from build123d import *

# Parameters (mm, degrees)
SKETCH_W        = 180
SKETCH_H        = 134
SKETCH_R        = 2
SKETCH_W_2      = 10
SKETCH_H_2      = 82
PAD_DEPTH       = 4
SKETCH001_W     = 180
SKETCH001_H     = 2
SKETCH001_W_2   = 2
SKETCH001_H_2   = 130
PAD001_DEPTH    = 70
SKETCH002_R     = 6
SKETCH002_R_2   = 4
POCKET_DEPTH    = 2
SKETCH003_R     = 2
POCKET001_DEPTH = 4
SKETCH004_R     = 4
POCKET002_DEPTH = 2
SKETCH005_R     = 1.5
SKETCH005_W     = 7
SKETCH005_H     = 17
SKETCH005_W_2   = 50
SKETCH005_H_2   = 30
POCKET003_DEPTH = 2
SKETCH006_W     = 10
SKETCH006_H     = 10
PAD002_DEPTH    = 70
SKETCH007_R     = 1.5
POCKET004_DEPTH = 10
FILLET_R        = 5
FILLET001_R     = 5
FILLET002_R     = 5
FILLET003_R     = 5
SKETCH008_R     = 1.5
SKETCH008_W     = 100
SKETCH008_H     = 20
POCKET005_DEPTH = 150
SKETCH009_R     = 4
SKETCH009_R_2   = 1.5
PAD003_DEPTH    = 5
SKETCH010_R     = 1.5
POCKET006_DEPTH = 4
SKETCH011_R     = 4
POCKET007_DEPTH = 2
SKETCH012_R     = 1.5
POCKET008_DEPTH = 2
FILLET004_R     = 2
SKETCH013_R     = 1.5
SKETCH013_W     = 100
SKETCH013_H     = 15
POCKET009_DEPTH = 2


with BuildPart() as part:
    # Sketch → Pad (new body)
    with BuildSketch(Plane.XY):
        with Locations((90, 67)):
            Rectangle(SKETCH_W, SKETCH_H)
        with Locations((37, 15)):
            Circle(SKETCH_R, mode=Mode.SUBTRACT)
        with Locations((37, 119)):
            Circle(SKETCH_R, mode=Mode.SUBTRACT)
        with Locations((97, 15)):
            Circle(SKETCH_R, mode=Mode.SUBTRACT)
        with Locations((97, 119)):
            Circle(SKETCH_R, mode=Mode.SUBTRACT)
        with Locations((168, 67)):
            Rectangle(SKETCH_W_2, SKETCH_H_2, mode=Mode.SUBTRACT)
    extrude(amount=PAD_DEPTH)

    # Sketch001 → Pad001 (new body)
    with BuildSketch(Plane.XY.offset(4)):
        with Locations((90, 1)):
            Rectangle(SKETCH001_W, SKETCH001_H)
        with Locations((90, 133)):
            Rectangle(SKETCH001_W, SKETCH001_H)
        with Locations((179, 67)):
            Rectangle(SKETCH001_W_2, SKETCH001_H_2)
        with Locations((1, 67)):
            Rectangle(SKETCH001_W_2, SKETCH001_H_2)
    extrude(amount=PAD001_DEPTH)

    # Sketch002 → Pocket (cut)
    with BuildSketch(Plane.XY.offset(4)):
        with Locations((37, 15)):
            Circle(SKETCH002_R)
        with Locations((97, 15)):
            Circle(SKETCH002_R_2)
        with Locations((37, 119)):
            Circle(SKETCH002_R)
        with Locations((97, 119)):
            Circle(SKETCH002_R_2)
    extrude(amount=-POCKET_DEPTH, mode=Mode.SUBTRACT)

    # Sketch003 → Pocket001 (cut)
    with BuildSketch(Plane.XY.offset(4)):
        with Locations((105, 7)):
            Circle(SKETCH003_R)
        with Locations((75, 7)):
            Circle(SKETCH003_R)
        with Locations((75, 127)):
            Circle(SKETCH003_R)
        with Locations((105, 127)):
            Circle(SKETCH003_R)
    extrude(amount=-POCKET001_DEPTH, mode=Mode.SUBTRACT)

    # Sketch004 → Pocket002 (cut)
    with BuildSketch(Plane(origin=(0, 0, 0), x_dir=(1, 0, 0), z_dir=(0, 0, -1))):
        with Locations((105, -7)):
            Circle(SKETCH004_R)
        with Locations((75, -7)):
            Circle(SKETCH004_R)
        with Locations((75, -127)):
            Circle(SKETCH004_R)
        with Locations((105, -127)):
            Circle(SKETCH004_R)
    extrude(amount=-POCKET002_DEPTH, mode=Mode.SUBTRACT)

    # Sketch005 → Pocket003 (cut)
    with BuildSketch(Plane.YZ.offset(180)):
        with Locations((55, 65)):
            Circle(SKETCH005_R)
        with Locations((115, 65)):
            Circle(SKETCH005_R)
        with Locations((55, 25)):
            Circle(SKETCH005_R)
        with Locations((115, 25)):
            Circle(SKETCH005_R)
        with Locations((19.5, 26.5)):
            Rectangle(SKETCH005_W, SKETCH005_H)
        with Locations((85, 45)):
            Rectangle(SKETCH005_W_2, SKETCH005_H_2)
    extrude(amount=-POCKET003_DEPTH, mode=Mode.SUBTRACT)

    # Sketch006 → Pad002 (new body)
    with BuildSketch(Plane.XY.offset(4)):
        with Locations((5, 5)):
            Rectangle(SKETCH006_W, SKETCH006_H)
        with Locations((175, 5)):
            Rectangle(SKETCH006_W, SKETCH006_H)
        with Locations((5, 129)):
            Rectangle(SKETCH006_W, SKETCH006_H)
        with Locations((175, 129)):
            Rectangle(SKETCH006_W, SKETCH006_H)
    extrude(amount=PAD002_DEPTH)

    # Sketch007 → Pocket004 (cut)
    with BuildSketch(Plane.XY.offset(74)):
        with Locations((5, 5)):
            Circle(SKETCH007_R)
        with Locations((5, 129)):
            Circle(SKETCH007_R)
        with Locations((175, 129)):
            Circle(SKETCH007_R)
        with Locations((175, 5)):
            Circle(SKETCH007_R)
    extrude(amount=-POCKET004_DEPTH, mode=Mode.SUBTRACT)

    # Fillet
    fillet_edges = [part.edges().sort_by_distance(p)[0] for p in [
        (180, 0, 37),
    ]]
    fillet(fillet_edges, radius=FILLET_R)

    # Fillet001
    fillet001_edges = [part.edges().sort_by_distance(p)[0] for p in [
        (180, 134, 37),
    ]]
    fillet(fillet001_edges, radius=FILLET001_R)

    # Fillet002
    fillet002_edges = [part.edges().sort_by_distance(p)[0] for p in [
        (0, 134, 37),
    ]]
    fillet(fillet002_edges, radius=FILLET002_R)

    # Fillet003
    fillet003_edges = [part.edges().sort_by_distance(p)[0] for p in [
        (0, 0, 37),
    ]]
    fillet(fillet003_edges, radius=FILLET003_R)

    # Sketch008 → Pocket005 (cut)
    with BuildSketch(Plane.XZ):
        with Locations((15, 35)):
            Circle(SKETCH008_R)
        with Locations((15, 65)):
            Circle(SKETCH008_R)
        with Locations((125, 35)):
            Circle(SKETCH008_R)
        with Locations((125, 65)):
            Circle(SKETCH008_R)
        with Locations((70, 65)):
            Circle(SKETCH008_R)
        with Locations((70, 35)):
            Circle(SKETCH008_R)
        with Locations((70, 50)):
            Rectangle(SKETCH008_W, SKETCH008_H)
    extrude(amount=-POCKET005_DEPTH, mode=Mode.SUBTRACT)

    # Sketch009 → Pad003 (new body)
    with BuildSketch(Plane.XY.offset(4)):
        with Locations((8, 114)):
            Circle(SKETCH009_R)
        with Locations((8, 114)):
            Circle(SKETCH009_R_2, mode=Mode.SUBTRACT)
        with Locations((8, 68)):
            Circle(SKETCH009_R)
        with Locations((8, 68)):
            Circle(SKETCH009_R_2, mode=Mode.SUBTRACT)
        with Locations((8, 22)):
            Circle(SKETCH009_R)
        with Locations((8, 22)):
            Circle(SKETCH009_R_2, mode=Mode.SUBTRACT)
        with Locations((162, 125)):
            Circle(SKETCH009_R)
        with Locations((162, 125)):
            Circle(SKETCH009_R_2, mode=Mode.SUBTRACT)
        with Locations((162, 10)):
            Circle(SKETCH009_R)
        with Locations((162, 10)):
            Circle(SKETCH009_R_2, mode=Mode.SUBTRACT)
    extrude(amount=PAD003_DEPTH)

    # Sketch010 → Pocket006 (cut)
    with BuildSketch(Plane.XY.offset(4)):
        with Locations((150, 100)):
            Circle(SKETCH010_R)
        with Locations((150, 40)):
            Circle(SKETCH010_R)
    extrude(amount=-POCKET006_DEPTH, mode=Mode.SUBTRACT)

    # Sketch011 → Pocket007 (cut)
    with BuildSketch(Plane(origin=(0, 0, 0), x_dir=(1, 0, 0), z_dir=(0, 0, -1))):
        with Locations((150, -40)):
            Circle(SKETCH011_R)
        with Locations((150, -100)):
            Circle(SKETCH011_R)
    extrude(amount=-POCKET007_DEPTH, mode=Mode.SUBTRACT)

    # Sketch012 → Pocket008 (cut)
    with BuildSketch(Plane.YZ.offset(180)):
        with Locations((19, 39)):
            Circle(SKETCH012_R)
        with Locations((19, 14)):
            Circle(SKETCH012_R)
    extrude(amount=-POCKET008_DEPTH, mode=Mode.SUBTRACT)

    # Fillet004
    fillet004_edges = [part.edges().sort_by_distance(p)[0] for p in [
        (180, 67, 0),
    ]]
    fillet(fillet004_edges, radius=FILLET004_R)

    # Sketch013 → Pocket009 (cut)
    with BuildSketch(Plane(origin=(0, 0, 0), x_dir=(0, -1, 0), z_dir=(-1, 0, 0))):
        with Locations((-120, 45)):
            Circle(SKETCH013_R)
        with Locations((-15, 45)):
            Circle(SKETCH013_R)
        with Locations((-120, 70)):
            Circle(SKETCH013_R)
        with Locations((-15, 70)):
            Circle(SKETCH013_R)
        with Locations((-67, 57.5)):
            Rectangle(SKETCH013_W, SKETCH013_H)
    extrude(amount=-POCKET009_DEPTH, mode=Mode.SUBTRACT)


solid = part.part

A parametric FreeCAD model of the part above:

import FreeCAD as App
import Part
import Sketcher
from FreeCAD import Vector
Q = App.Units.Quantity


def edges_at(feature, points):
    """Names of the edges that pass closest to the given points."""
    edges = feature.Shape.Edges
    near = lambda p: min(range(len(edges)), key=lambda i: edges[i].distToShape(Part.Vertex(*p))[0])
    return sorted({f"Edge{near(p) + 1}" for p in points})

doc = App.newDocument("Part")
body = doc.addObject("PartDesign::Body", "Body")

# Sketch on XY plane
sketch1 = body.newObject("Sketcher::SketchObject", "Sketch")
sketch1.AttachmentSupport = (doc.getObject("XY_Plane"), [""])
sketch1.MapMode = "FlatFace"
sketch1.addGeometry([
    Part.LineSegment(Vector(0, 134, 0), Vector(0, 0, 0)),  # 0
    Part.LineSegment(Vector(0, 0, 0), Vector(180, 0, 0)),  # 1
    Part.LineSegment(Vector(180, 0, 0), Vector(180, 134, 0)),  # 2
    Part.LineSegment(Vector(180, 134, 0), Vector(0, 134, 0)),  # 3
    Part.Circle(Vector(37, 15, 0), Vector(0, 0, 1), 2),  # 4
    Part.Circle(Vector(97, 15, 0), Vector(0, 0, 1), 2),  # 5
    Part.Circle(Vector(37, 119, 0), Vector(0, 0, 1), 2),  # 6
    Part.Circle(Vector(97, 119, 0), Vector(0, 0, 1), 2),  # 7
    Part.LineSegment(Vector(173, 26, 0), Vector(163, 26, 0)),  # 8
    Part.LineSegment(Vector(163, 26, 0), Vector(163, 108, 0)),  # 9
    Part.LineSegment(Vector(163, 108, 0), Vector(173, 108, 0)),  # 10
    Part.LineSegment(Vector(173, 108, 0), Vector(173, 26, 0)),  # 11
], False)
sketch1.addConstraint([
    Sketcher.Constraint("Coincident", 0, 2, 1, 1),
    Sketcher.Constraint("Coincident", 1, 2, 2, 1),
    Sketcher.Constraint("Coincident", 2, 2, 3, 1),
    Sketcher.Constraint("Coincident", 3, 2, 0, 1),
    Sketcher.Constraint("Coincident", 8, 2, 9, 1),
    Sketcher.Constraint("Coincident", 9, 2, 10, 1),
    Sketcher.Constraint("Coincident", 10, 2, 11, 1),
    Sketcher.Constraint("Coincident", 11, 2, 8, 1),
    Sketcher.Constraint("Vertical", 0),
    Sketcher.Constraint("Horizontal", 1),
    Sketcher.Constraint("Vertical", 2),
    Sketcher.Constraint("Horizontal", 3),
    Sketcher.Constraint("Horizontal", 8),
    Sketcher.Constraint("Vertical", 9),
    Sketcher.Constraint("Horizontal", 10),
    Sketcher.Constraint("Vertical", 11),
    Sketcher.Constraint("Coincident", 0, 2, -1, 1),
    Sketcher.Constraint("Equal", 4, 5),
    Sketcher.Constraint("Equal", 5, 6),
    Sketcher.Constraint("Equal", 6, 7),
    Sketcher.Constraint("Horizontal", 4, 3, 5, 3),
    Sketcher.Constraint("Horizontal", 6, 3, 7, 3),
    Sketcher.Constraint("Vertical", 4, 3, 6, 3),
    Sketcher.Constraint("Vertical", 5, 3, 7, 3),
    Sketcher.Constraint("Diameter", 4, Q("4 mm")),
    Sketcher.Constraint("DistanceX", 1, 1, 1, 2, Q("180 mm")),
    Sketcher.Constraint("DistanceX", 8, 2, 8, 1, Q("10 mm")),
    Sketcher.Constraint("DistanceY", 0, 2, 0, 1, Q("134 mm")),
    Sketcher.Constraint("DistanceY", 9, 1, 9, 2, Q("82 mm")),
    Sketcher.Constraint("DistanceX", -1, 1, 4, 3, Q("37 mm")),
    Sketcher.Constraint("DistanceY", -1, 1, 4, 3, Q("15 mm")),
    Sketcher.Constraint("DistanceX", -1, 1, 5, 3, Q("97 mm")),
    Sketcher.Constraint("DistanceY", -1, 1, 6, 3, Q("119 mm")),
    Sketcher.Constraint("DistanceX", -1, 1, 8, 2, Q("163 mm")),
    Sketcher.Constraint("DistanceY", -1, 1, 8, 2, Q("26 mm")),
])
pad1 = body.newObject("PartDesign::Pad", "Pad")
pad1.Profile = sketch1
pad1.Length = 4

# Sketch on XY plane
sketch2 = body.newObject("Sketcher::SketchObject", "Sketch001")
sketch2.AttachmentSupport = (doc.getObject("XY_Plane"), [""])
sketch2.MapMode = "FlatFace"
sketch2.AttachmentOffset = App.Placement(Vector(0, 0, 4), App.Rotation())
sketch2.addGeometry([
    Part.LineSegment(Vector(0, 0, 0), Vector(180, 0, 0)),  # 0
    Part.LineSegment(Vector(180, 0, 0), Vector(180, 134, 0)),  # 1
    Part.LineSegment(Vector(180, 134, 0), Vector(0, 134, 0)),  # 2
    Part.LineSegment(Vector(0, 134, 0), Vector(0, 0, 0)),  # 3
    Part.LineSegment(Vector(2, 132, 0), Vector(178, 132, 0)),  # 4
    Part.LineSegment(Vector(178, 132, 0), Vector(178, 2, 0)),  # 5
    Part.LineSegment(Vector(178, 2, 0), Vector(2, 2, 0)),  # 6
    Part.LineSegment(Vector(2, 2, 0), Vector(2, 132, 0)),  # 7
], False)
sketch2.addConstraint([
    Sketcher.Constraint("Coincident", 0, 2, 1, 1),
    Sketcher.Constraint("Coincident", 1, 2, 2, 1),
    Sketcher.Constraint("Coincident", 2, 2, 3, 1),
    Sketcher.Constraint("Coincident", 3, 2, 0, 1),
    Sketcher.Constraint("Coincident", 4, 2, 5, 1),
    Sketcher.Constraint("Coincident", 5, 2, 6, 1),
    Sketcher.Constraint("Coincident", 6, 2, 7, 1),
    Sketcher.Constraint("Coincident", 7, 2, 4, 1),
    Sketcher.Constraint("Horizontal", 0),
    Sketcher.Constraint("Vertical", 1),
    Sketcher.Constraint("Horizontal", 2),
    Sketcher.Constraint("Vertical", 3),
    Sketcher.Constraint("Horizontal", 4),
    Sketcher.Constraint("Vertical", 5),
    Sketcher.Constraint("Horizontal", 6),
    Sketcher.Constraint("Vertical", 7),
    Sketcher.Constraint("Coincident", 3, 2, -1, 1),
    Sketcher.Constraint("DistanceX", 0, 1, 0, 2, Q("180 mm")),
    Sketcher.Constraint("DistanceX", 4, 1, 4, 2, Q("176 mm")),
    Sketcher.Constraint("DistanceY", 1, 1, 1, 2, Q("134 mm")),
    Sketcher.Constraint("DistanceY", 5, 2, 5, 1, Q("130 mm")),
    Sketcher.Constraint("DistanceX", -1, 1, 4, 2, Q("178 mm")),
    Sketcher.Constraint("DistanceY", -1, 1, 4, 2, Q("132 mm")),
])
pad2 = body.newObject("PartDesign::Pad", "Pad001")
pad2.Profile = sketch2
pad2.Length = 70

# Sketch on XY plane
sketch3 = body.newObject("Sketcher::SketchObject", "Sketch002")
sketch3.AttachmentSupport = (doc.getObject("XY_Plane"), [""])
sketch3.MapMode = "FlatFace"
sketch3.AttachmentOffset = App.Placement(Vector(0, 0, 4), App.Rotation())
sketch3.addGeometry([
    Part.Circle(Vector(37, 15, 0), Vector(0, 0, 1), 6),
    Part.Circle(Vector(97, 15, 0), Vector(0, 0, 1), 4),
    Part.Circle(Vector(37, 119, 0), Vector(0, 0, 1), 6),
    Part.Circle(Vector(97, 119, 0), Vector(0, 0, 1), 4),
], False)
sketch3.addConstraint([
    Sketcher.Constraint("Equal", 0, 2),
    Sketcher.Constraint("Equal", 1, 3),
    Sketcher.Constraint("Horizontal", 0, 3, 1, 3),
    Sketcher.Constraint("Horizontal", 2, 3, 3, 3),
    Sketcher.Constraint("Vertical", 0, 3, 2, 3),
    Sketcher.Constraint("Vertical", 1, 3, 3, 3),
    Sketcher.Constraint("Diameter", 0, Q("12 mm")),
    Sketcher.Constraint("Diameter", 1, Q("8 mm")),
    Sketcher.Constraint("DistanceX", -1, 1, 0, 3, Q("37 mm")),
    Sketcher.Constraint("DistanceY", -1, 1, 0, 3, Q("15 mm")),
    Sketcher.Constraint("DistanceX", -1, 1, 1, 3, Q("97 mm")),
    Sketcher.Constraint("DistanceY", -1, 1, 2, 3, Q("119 mm")),
])
pocket1 = body.newObject("PartDesign::Pocket", "Pocket")
pocket1.Profile = sketch3
pocket1.Length = 2

# Sketch on XY plane
sketch4 = body.newObject("Sketcher::SketchObject", "Sketch003")
sketch4.AttachmentSupport = (doc.getObject("XY_Plane"), [""])
sketch4.MapMode = "FlatFace"
sketch4.AttachmentOffset = App.Placement(Vector(0, 0, 4), App.Rotation())
sketch4.addGeometry([
    Part.Circle(Vector(105, 7, 0), Vector(0, 0, 1), 2),
    Part.Circle(Vector(75, 7, 0), Vector(0, 0, 1), 2),
    Part.Circle(Vector(75, 127, 0), Vector(0, 0, 1), 2),
    Part.Circle(Vector(105, 127, 0), Vector(0, 0, 1), 2),
], False)
sketch4.addConstraint([
    Sketcher.Constraint("Equal", 0, 1),
    Sketcher.Constraint("Equal", 1, 2),
    Sketcher.Constraint("Equal", 2, 3),
    Sketcher.Constraint("Horizontal", 0, 3, 1, 3),
    Sketcher.Constraint("Horizontal", 2, 3, 3, 3),
    Sketcher.Constraint("Vertical", 1, 3, 2, 3),
    Sketcher.Constraint("Vertical", 0, 3, 3, 3),
    Sketcher.Constraint("Diameter", 0, Q("4 mm")),
    Sketcher.Constraint("DistanceX", -1, 1, 0, 3, Q("105 mm")),
    Sketcher.Constraint("DistanceY", -1, 1, 0, 3, Q("7 mm")),
    Sketcher.Constraint("DistanceX", -1, 1, 1, 3, Q("75 mm")),
    Sketcher.Constraint("DistanceY", -1, 1, 2, 3, Q("127 mm")),
])
pocket2 = body.newObject("PartDesign::Pocket", "Pocket001")
pocket2.Profile = sketch4
pocket2.Length = 4

# Sketch on XY plane
sketch5 = body.newObject("Sketcher::SketchObject", "Sketch004")
sketch5.AttachmentSupport = (doc.getObject("XY_Plane"), [""])
sketch5.MapMode = "FlatFace"
sketch5.addGeometry([
    Part.Circle(Vector(105, 7, 0), Vector(0, 0, 1), 4),
    Part.Circle(Vector(75, 7, 0), Vector(0, 0, 1), 4),
    Part.Circle(Vector(75, 127, 0), Vector(0, 0, 1), 4),
    Part.Circle(Vector(105, 127, 0), Vector(0, 0, 1), 4),
], False)
sketch5.addConstraint([
    Sketcher.Constraint("Equal", 0, 1),
    Sketcher.Constraint("Equal", 1, 2),
    Sketcher.Constraint("Equal", 2, 3),
    Sketcher.Constraint("Horizontal", 0, 3, 1, 3),
    Sketcher.Constraint("Horizontal", 2, 3, 3, 3),
    Sketcher.Constraint("Vertical", 1, 3, 2, 3),
    Sketcher.Constraint("Vertical", 0, 3, 3, 3),
    Sketcher.Constraint("Diameter", 0, Q("8 mm")),
    Sketcher.Constraint("DistanceX", -1, 1, 0, 3, Q("105 mm")),
    Sketcher.Constraint("DistanceY", -1, 1, 0, 3, Q("7 mm")),
    Sketcher.Constraint("DistanceX", -1, 1, 1, 3, Q("75 mm")),
    Sketcher.Constraint("DistanceY", -1, 1, 2, 3, Q("127 mm")),
])
pocket3 = body.newObject("PartDesign::Pocket", "Pocket002")
pocket3.Profile = sketch5
pocket3.Length = 2
pocket3.Reversed = True

# Sketch on YZ plane
sketch6 = body.newObject("Sketcher::SketchObject", "Sketch005")
sketch6.AttachmentSupport = (doc.getObject("YZ_Plane"), [""])
sketch6.MapMode = "FlatFace"
sketch6.AttachmentOffset = App.Placement(Vector(0, 0, 180), App.Rotation())
sketch6.addGeometry([
    Part.Circle(Vector(55, 65, 0), Vector(0, 0, 1), 1.5),  # 0
    Part.Circle(Vector(115, 65, 0), Vector(0, 0, 1), 1.5),  # 1
    Part.Circle(Vector(55, 25, 0), Vector(0, 0, 1), 1.5),  # 2
    Part.Circle(Vector(115, 25, 0), Vector(0, 0, 1), 1.5),  # 3
    Part.LineSegment(Vector(16, 35, 0), Vector(16, 18, 0)),  # 4
    Part.LineSegment(Vector(16, 18, 0), Vector(23, 18, 0)),  # 5
    Part.LineSegment(Vector(23, 18, 0), Vector(23, 35, 0)),  # 6
    Part.LineSegment(Vector(23, 35, 0), Vector(16, 35, 0)),  # 7
    Part.LineSegment(Vector(60, 60, 0), Vector(60, 30, 0)),  # 8
    Part.LineSegment(Vector(60, 30, 0), Vector(110, 30, 0)),  # 9
    Part.LineSegment(Vector(110, 30, 0), Vector(110, 60, 0)),  # 10
    Part.LineSegment(Vector(110, 60, 0), Vector(60, 60, 0)),  # 11
], False)
sketch6.addConstraint([
    Sketcher.Constraint("Coincident", 4, 2, 5, 1),
    Sketcher.Constraint("Coincident", 5, 2, 6, 1),
    Sketcher.Constraint("Coincident", 6, 2, 7, 1),
    Sketcher.Constraint("Coincident", 7, 2, 4, 1),
    Sketcher.Constraint("Coincident", 8, 2, 9, 1),
    Sketcher.Constraint("Coincident", 9, 2, 10, 1),
    Sketcher.Constraint("Coincident", 10, 2, 11, 1),
    Sketcher.Constraint("Coincident", 11, 2, 8, 1),
    Sketcher.Constraint("Vertical", 4),
    Sketcher.Constraint("Horizontal", 5),
    Sketcher.Constraint("Vertical", 6),
    Sketcher.Constraint("Horizontal", 7),
    Sketcher.Constraint("Vertical", 8),
    Sketcher.Constraint("Horizontal", 9),
    Sketcher.Constraint("Vertical", 10),
    Sketcher.Constraint("Horizontal", 11),
    Sketcher.Constraint("Equal", 0, 1),
    Sketcher.Constraint("Equal", 1, 2),
    Sketcher.Constraint("Equal", 2, 3),
    Sketcher.Constraint("Horizontal", 0, 3, 1, 3),
    Sketcher.Constraint("Horizontal", 2, 3, 3, 3),
    Sketcher.Constraint("Vertical", 0, 3, 2, 3),
    Sketcher.Constraint("Vertical", 1, 3, 3, 3),
    Sketcher.Constraint("Diameter", 0, Q("3 mm")),
    Sketcher.Constraint("DistanceX", 5, 1, 5, 2, Q("7 mm")),
    Sketcher.Constraint("DistanceX", 9, 1, 9, 2, Q("50 mm")),
    Sketcher.Constraint("DistanceY", 4, 2, 4, 1, Q("17 mm")),
    Sketcher.Constraint("DistanceY", 8, 2, 8, 1, Q("30 mm")),
    Sketcher.Constraint("DistanceX", -1, 1, 0, 3, Q("55 mm")),
    Sketcher.Constraint("DistanceY", -1, 1, 0, 3, Q("65 mm")),
    Sketcher.Constraint("DistanceX", -1, 1, 1, 3, Q("115 mm")),
    Sketcher.Constraint("DistanceY", -1, 1, 2, 3, Q("25 mm")),
    Sketcher.Constraint("DistanceX", -1, 1, 4, 2, Q("16 mm")),
    Sketcher.Constraint("DistanceY", -1, 1, 4, 2, Q("18 mm")),
    Sketcher.Constraint("DistanceX", -1, 1, 8, 2, Q("60 mm")),
    Sketcher.Constraint("DistanceY", -1, 1, 8, 2, Q("30 mm")),
])
pocket4 = body.newObject("PartDesign::Pocket", "Pocket003")
pocket4.Profile = sketch6
pocket4.Length = 2

# Sketch on XY plane
sketch7 = body.newObject("Sketcher::SketchObject", "Sketch006")
sketch7.AttachmentSupport = (doc.getObject("XY_Plane"), [""])
sketch7.MapMode = "FlatFace"
sketch7.AttachmentOffset = App.Placement(Vector(0, 0, 4), App.Rotation())
sketch7.addGeometry([
    Part.LineSegment(Vector(0, 10, 0), Vector(0, 0, 0)),  # 0
    Part.LineSegment(Vector(0, 0, 0), Vector(10, 0, 0)),  # 1
    Part.LineSegment(Vector(10, 0, 0), Vector(10, 10, 0)),  # 2
    Part.LineSegment(Vector(10, 10, 0), Vector(0, 10, 0)),  # 3
    Part.LineSegment(Vector(170, 10, 0), Vector(170, 0, 0)),  # 4
    Part.LineSegment(Vector(170, 0, 0), Vector(180, 0, 0)),  # 5
    Part.LineSegment(Vector(180, 0, 0), Vector(180, 10, 0)),  # 6
    Part.LineSegment(Vector(180, 10, 0), Vector(170, 10, 0)),  # 7
    Part.LineSegment(Vector(0, 134, 0), Vector(0, 124, 0)),  # 8
    Part.LineSegment(Vector(0, 124, 0), Vector(10, 124, 0)),  # 9
    Part.LineSegment(Vector(10, 124, 0), Vector(10, 134, 0)),  # 10
    Part.LineSegment(Vector(10, 134, 0), Vector(0, 134, 0)),  # 11
    Part.LineSegment(Vector(170, 134, 0), Vector(170, 124, 0)),  # 12
    Part.LineSegment(Vector(170, 124, 0), Vector(180, 124, 0)),  # 13
    Part.LineSegment(Vector(180, 124, 0), Vector(180, 134, 0)),  # 14
    Part.LineSegment(Vector(180, 134, 0), Vector(170, 134, 0)),  # 15
], False)
sketch7.addConstraint([
    Sketcher.Constraint("Coincident", 0, 2, 1, 1),
    Sketcher.Constraint("Coincident", 1, 2, 2, 1),
    Sketcher.Constraint("Coincident", 2, 2, 3, 1),
    Sketcher.Constraint("Coincident", 3, 2, 0, 1),
    Sketcher.Constraint("Coincident", 4, 2, 5, 1),
    Sketcher.Constraint("Coincident", 5, 2, 6, 1),
    Sketcher.Constraint("Coincident", 6, 2, 7, 1),
    Sketcher.Constraint("Coincident", 7, 2, 4, 1),
    Sketcher.Constraint("Coincident", 8, 2, 9, 1),
    Sketcher.Constraint("Coincident", 9, 2, 10, 1),
    Sketcher.Constraint("Coincident", 10, 2, 11, 1),
    Sketcher.Constraint("Coincident", 11, 2, 8, 1),
    Sketcher.Constraint("Coincident", 12, 2, 13, 1),
    Sketcher.Constraint("Coincident", 13, 2, 14, 1),
    Sketcher.Constraint("Coincident", 14, 2, 15, 1),
    Sketcher.Constraint("Coincident", 15, 2, 12, 1),
    Sketcher.Constraint("Vertical", 0),
    Sketcher.Constraint("Horizontal", 1),
    Sketcher.Constraint("Vertical", 2),
    Sketcher.Constraint("Horizontal", 3),
    Sketcher.Constraint("Vertical", 4),
    Sketcher.Constraint("Horizontal", 5),
    Sketcher.Constraint("Vertical", 6),
    Sketcher.Constraint("Horizontal", 7),
    Sketcher.Constraint("Vertical", 8),
    Sketcher.Constraint("Horizontal", 9),
    Sketcher.Constraint("Vertical", 10),
    Sketcher.Constraint("Horizontal", 11),
    Sketcher.Constraint("Vertical", 12),
    Sketcher.Constraint("Horizontal", 13),
    Sketcher.Constraint("Vertical", 14),
    Sketcher.Constraint("Horizontal", 15),
    Sketcher.Constraint("Coincident", 0, 2, -1, 1),
    Sketcher.Constraint("PointOnObject", 4, 2, -1),
    Sketcher.Constraint("PointOnObject", 8, 2, -2),
    Sketcher.Constraint("Horizontal", 3, 2, 6, 2),
    Sketcher.Constraint("Horizontal", 9, 2, 12, 2),
    Sketcher.Constraint("Horizontal", 11, 2, 14, 2),
    Sketcher.Constraint("Vertical", 2, 2, 9, 2),
    Sketcher.Constraint("Vertical", 7, 2, 12, 2),
    Sketcher.Constraint("Vertical", 6, 2, 13, 2),
    Sketcher.Constraint("Equal", 3, 5),
    Sketcher.Constraint("Equal", 15, 0),
    Sketcher.Constraint("Equal", 6, 8),
    Sketcher.Constraint("DistanceX", 1, 1, 1, 2, Q("10 mm")),
    Sketcher.Constraint("DistanceX", -1, 1, 4, 2, Q("170 mm")),
    Sketcher.Constraint("DistanceY", -1, 1, 8, 2, Q("124 mm")),
])
pad3 = body.newObject("PartDesign::Pad", "Pad002")
pad3.Profile = sketch7
pad3.Length = 70

# Sketch on XY plane
sketch8 = body.newObject("Sketcher::SketchObject", "Sketch007")
sketch8.AttachmentSupport = (doc.getObject("XY_Plane"), [""])
sketch8.MapMode = "FlatFace"
sketch8.AttachmentOffset = App.Placement(Vector(0, 0, 74), App.Rotation())
sketch8.addGeometry([
    Part.Circle(Vector(5, 5, 0), Vector(0, 0, 1), 1.5),
    Part.Circle(Vector(5, 129, 0), Vector(0, 0, 1), 1.5),
    Part.Circle(Vector(175, 129, 0), Vector(0, 0, 1), 1.5),
    Part.Circle(Vector(175, 5, 0), Vector(0, 0, 1), 1.5),
], False)
sketch8.addConstraint([
    Sketcher.Constraint("Equal", 0, 1),
    Sketcher.Constraint("Equal", 1, 2),
    Sketcher.Constraint("Equal", 2, 3),
    Sketcher.Constraint("Horizontal", 1, 3, 2, 3),
    Sketcher.Constraint("Horizontal", 0, 3, 3, 3),
    Sketcher.Constraint("Vertical", 0, 3, 1, 3),
    Sketcher.Constraint("Vertical", 2, 3, 3, 3),
    Sketcher.Constraint("Diameter", 0, Q("3 mm")),
    Sketcher.Constraint("DistanceX", -1, 1, 0, 3, Q("5 mm")),
    Sketcher.Constraint("DistanceY", -1, 1, 0, 3, Q("5 mm")),
    Sketcher.Constraint("DistanceY", -1, 1, 1, 3, Q("129 mm")),
    Sketcher.Constraint("DistanceX", -1, 1, 2, 3, Q("175 mm")),
])
pocket5 = body.newObject("PartDesign::Pocket", "Pocket004")
pocket5.Profile = sketch8
pocket5.Length = 10
doc.recompute()

fillet = body.newObject("PartDesign::Fillet", "Fillet")
fillet.Base = (pocket5, edges_at(pocket5, [(180, 0, 37)]))
fillet.Radius = 5
doc.recompute()

fillet2 = body.newObject("PartDesign::Fillet", "Fillet001")
fillet2.Base = (fillet, edges_at(fillet, [(180, 134, 37)]))
fillet2.Radius = 5
doc.recompute()

fillet3 = body.newObject("PartDesign::Fillet", "Fillet002")
fillet3.Base = (fillet2, edges_at(fillet2, [(0, 134, 37)]))
fillet3.Radius = 5
doc.recompute()

fillet4 = body.newObject("PartDesign::Fillet", "Fillet003")
fillet4.Base = (fillet3, edges_at(fillet3, [(0, 0, 37)]))
fillet4.Radius = 5

# Sketch on XZ plane
sketch9 = body.newObject("Sketcher::SketchObject", "Sketch008")
sketch9.AttachmentSupport = (doc.getObject("XZ_Plane"), [""])
sketch9.MapMode = "FlatFace"
sketch9.addGeometry([
    Part.Circle(Vector(15, 35, 0), Vector(0, 0, 1), 1.5),  # 0
    Part.Circle(Vector(15, 65, 0), Vector(0, 0, 1), 1.5),  # 1
    Part.Circle(Vector(125, 35, 0), Vector(0, 0, 1), 1.5),  # 2
    Part.Circle(Vector(125, 65, 0), Vector(0, 0, 1), 1.5),  # 3
    Part.Circle(Vector(70, 65, 0), Vector(0, 0, 1), 1.5),  # 4
    Part.Circle(Vector(70, 35, 0), Vector(0, 0, 1), 1.5),  # 5
    Part.LineSegment(Vector(20, 60, 0), Vector(20, 40, 0)),  # 6
    Part.LineSegment(Vector(20, 40, 0), Vector(120, 40, 0)),  # 7
    Part.LineSegment(Vector(120, 40, 0), Vector(120, 60, 0)),  # 8
    Part.LineSegment(Vector(120, 60, 0), Vector(20, 60, 0)),  # 9
], False)
sketch9.addConstraint([
    Sketcher.Constraint("Coincident", 6, 2, 7, 1),
    Sketcher.Constraint("Coincident", 7, 2, 8, 1),
    Sketcher.Constraint("Coincident", 8, 2, 9, 1),
    Sketcher.Constraint("Coincident", 9, 2, 6, 1),
    Sketcher.Constraint("Vertical", 6),
    Sketcher.Constraint("Horizontal", 7),
    Sketcher.Constraint("Vertical", 8),
    Sketcher.Constraint("Horizontal", 9),
    Sketcher.Constraint("Equal", 0, 1),
    Sketcher.Constraint("Equal", 1, 2),
    Sketcher.Constraint("Equal", 2, 3),
    Sketcher.Constraint("Equal", 3, 4),
    Sketcher.Constraint("Equal", 4, 5),
    Sketcher.Constraint("Horizontal", 0, 3, 2, 3),
    Sketcher.Constraint("Horizontal", 1, 3, 3, 3),
    Sketcher.Constraint("Horizontal", 3, 3, 4, 3),
    Sketcher.Constraint("Horizontal", 2, 3, 5, 3),
    Sketcher.Constraint("Vertical", 0, 3, 1, 3),
    Sketcher.Constraint("Vertical", 2, 3, 3, 3),
    Sketcher.Constraint("Vertical", 4, 3, 5, 3),
    Sketcher.Constraint("Diameter", 0, Q("3 mm")),
    Sketcher.Constraint("DistanceX", 7, 1, 7, 2, Q("100 mm")),
    Sketcher.Constraint("DistanceY", 6, 2, 6, 1, Q("20 mm")),
    Sketcher.Constraint("DistanceX", -1, 1, 0, 3, Q("15 mm")),
    Sketcher.Constraint("DistanceY", -1, 1, 0, 3, Q("35 mm")),
    Sketcher.Constraint("DistanceY", -1, 1, 1, 3, Q("65 mm")),
    Sketcher.Constraint("DistanceX", -1, 1, 2, 3, Q("125 mm")),
    Sketcher.Constraint("DistanceX", -1, 1, 4, 3, Q("70 mm")),
    Sketcher.Constraint("DistanceX", -1, 1, 6, 2, Q("20 mm")),
    Sketcher.Constraint("DistanceY", -1, 1, 6, 2, Q("40 mm")),
])
pocket6 = body.newObject("PartDesign::Pocket", "Pocket005")
pocket6.Profile = sketch9
pocket6.Length = 150

# Sketch on XY plane
sketch10 = body.newObject("Sketcher::SketchObject", "Sketch009")
sketch10.AttachmentSupport = (doc.getObject("XY_Plane"), [""])
sketch10.MapMode = "FlatFace"
sketch10.AttachmentOffset = App.Placement(Vector(0, 0, 4), App.Rotation())
sketch10.addGeometry([
    Part.Circle(Vector(8, 114, 0), Vector(0, 0, 1), 4),  # 0
    Part.Circle(Vector(8, 114, 0), Vector(0, 0, 1), 1.5),  # 1
    Part.Circle(Vector(8, 68, 0), Vector(0, 0, 1), 4),  # 2
    Part.Circle(Vector(8, 68, 0), Vector(0, 0, 1), 1.5),  # 3
    Part.Circle(Vector(8, 22, 0), Vector(0, 0, 1), 4),  # 4
    Part.Circle(Vector(8, 22, 0), Vector(0, 0, 1), 1.5),  # 5
    Part.Circle(Vector(162, 125, 0), Vector(0, 0, 1), 4),  # 6
    Part.Circle(Vector(162, 125, 0), Vector(0, 0, 1), 1.5),  # 7
    Part.Circle(Vector(162, 10, 0), Vector(0, 0, 1), 4),  # 8
    Part.Circle(Vector(162, 10, 0), Vector(0, 0, 1), 1.5),  # 9
], False)
sketch10.addConstraint([
    Sketcher.Constraint("Coincident", 1, 3, 0, 3),
    Sketcher.Constraint("Coincident", 3, 3, 2, 3),
    Sketcher.Constraint("Coincident", 5, 3, 4, 3),
    Sketcher.Constraint("Coincident", 7, 3, 6, 3),
    Sketcher.Constraint("Coincident", 9, 3, 8, 3),
    Sketcher.Constraint("Equal", 0, 2),
    Sketcher.Constraint("Equal", 1, 3),
    Sketcher.Constraint("Equal", 2, 4),
    Sketcher.Constraint("Equal", 3, 5),
    Sketcher.Constraint("Equal", 4, 6),
    Sketcher.Constraint("Equal", 5, 7),
    Sketcher.Constraint("Equal", 6, 8),
    Sketcher.Constraint("Equal", 7, 9),
    Sketcher.Constraint("Vertical", 1, 3, 2, 3),
    Sketcher.Constraint("Vertical", 3, 3, 4, 3),
    Sketcher.Constraint("Vertical", 7, 3, 8, 3),
    Sketcher.Constraint("Diameter", 0, Q("8 mm")),
    Sketcher.Constraint("Diameter", 1, Q("3 mm")),
    Sketcher.Constraint("DistanceX", -1, 1, 0, 3, Q("8 mm")),
    Sketcher.Constraint("DistanceY", -1, 1, 0, 3, Q("114 mm")),
    Sketcher.Constraint("DistanceY", -1, 1, 2, 3, Q("68 mm")),
    Sketcher.Constraint("DistanceY", -1, 1, 4, 3, Q("22 mm")),
    Sketcher.Constraint("DistanceX", -1, 1, 6, 3, Q("162 mm")),
    Sketcher.Constraint("DistanceY", -1, 1, 6, 3, Q("125 mm")),
    Sketcher.Constraint("DistanceY", -1, 1, 8, 3, Q("10 mm")),
])
pad4 = body.newObject("PartDesign::Pad", "Pad003")
pad4.Profile = sketch10
pad4.Length = 5

# Sketch on XY plane
sketch11 = body.newObject("Sketcher::SketchObject", "Sketch010")
sketch11.AttachmentSupport = (doc.getObject("XY_Plane"), [""])
sketch11.MapMode = "FlatFace"
sketch11.AttachmentOffset = App.Placement(Vector(0, 0, 4), App.Rotation())
sketch11.addGeometry([
    Part.Circle(Vector(150, 100, 0), Vector(0, 0, 1), 1.5),
    Part.Circle(Vector(150, 40, 0), Vector(0, 0, 1), 1.5),
], False)
sketch11.addConstraint([
    Sketcher.Constraint("Equal", 0, 1),
    Sketcher.Constraint("Vertical", 0, 3, 1, 3),
    Sketcher.Constraint("Diameter", 0, Q("3 mm")),
    Sketcher.Constraint("DistanceX", -1, 1, 0, 3, Q("150 mm")),
    Sketcher.Constraint("DistanceY", -1, 1, 0, 3, Q("100 mm")),
    Sketcher.Constraint("DistanceY", -1, 1, 1, 3, Q("40 mm")),
])
pocket7 = body.newObject("PartDesign::Pocket", "Pocket006")
pocket7.Profile = sketch11
pocket7.Length = 4

# Sketch on XY plane
sketch12 = body.newObject("Sketcher::SketchObject", "Sketch011")
sketch12.AttachmentSupport = (doc.getObject("XY_Plane"), [""])
sketch12.MapMode = "FlatFace"
sketch12.addGeometry([
    Part.Circle(Vector(150, 40, 0), Vector(0, 0, 1), 4),
    Part.Circle(Vector(150, 100, 0), Vector(0, 0, 1), 4),
], False)
sketch12.addConstraint([
    Sketcher.Constraint("Equal", 0, 1),
    Sketcher.Constraint("Vertical", 0, 3, 1, 3),
    Sketcher.Constraint("Diameter", 0, Q("8 mm")),
    Sketcher.Constraint("DistanceX", -1, 1, 0, 3, Q("150 mm")),
    Sketcher.Constraint("DistanceY", -1, 1, 0, 3, Q("40 mm")),
    Sketcher.Constraint("DistanceY", -1, 1, 1, 3, Q("100 mm")),
])
pocket8 = body.newObject("PartDesign::Pocket", "Pocket007")
pocket8.Profile = sketch12
pocket8.Length = 2
pocket8.Reversed = True

# Sketch on YZ plane
sketch13 = body.newObject("Sketcher::SketchObject", "Sketch012")
sketch13.AttachmentSupport = (doc.getObject("YZ_Plane"), [""])
sketch13.MapMode = "FlatFace"
sketch13.AttachmentOffset = App.Placement(Vector(0, 0, 180), App.Rotation())
sketch13.addGeometry([
    Part.Circle(Vector(19, 39, 0), Vector(0, 0, 1), 1.5),
    Part.Circle(Vector(19, 14, 0), Vector(0, 0, 1), 1.5),
], False)
sketch13.addConstraint([
    Sketcher.Constraint("Equal", 0, 1),
    Sketcher.Constraint("Vertical", 0, 3, 1, 3),
    Sketcher.Constraint("Diameter", 0, Q("3 mm")),
    Sketcher.Constraint("DistanceX", -1, 1, 0, 3, Q("19 mm")),
    Sketcher.Constraint("DistanceY", -1, 1, 0, 3, Q("39 mm")),
    Sketcher.Constraint("DistanceY", -1, 1, 1, 3, Q("14 mm")),
])
pocket9 = body.newObject("PartDesign::Pocket", "Pocket008")
pocket9.Profile = sketch13
pocket9.Length = 2
doc.recompute()

fillet5 = body.newObject("PartDesign::Fillet", "Fillet004")
fillet5.Base = (pocket9, edges_at(pocket9, [(180, 67, 0)]))
fillet5.Radius = 2

# Sketch on YZ plane
sketch14 = body.newObject("Sketcher::SketchObject", "Sketch013")
sketch14.AttachmentSupport = (doc.getObject("YZ_Plane"), [""])
sketch14.MapMode = "FlatFace"
sketch14.addGeometry([
    Part.Circle(Vector(120, 45, 0), Vector(0, 0, 1), 1.5),  # 0
    Part.Circle(Vector(15, 45, 0), Vector(0, 0, 1), 1.5),  # 1
    Part.Circle(Vector(120, 70, 0), Vector(0, 0, 1), 1.5),  # 2
    Part.Circle(Vector(15, 70, 0), Vector(0, 0, 1), 1.5),  # 3
    Part.LineSegment(Vector(117, 65, 0), Vector(117, 50, 0)),  # 4
    Part.LineSegment(Vector(117, 50, 0), Vector(17, 50, 0)),  # 5
    Part.LineSegment(Vector(17, 50, 0), Vector(17, 65, 0)),  # 6
    Part.LineSegment(Vector(17, 65, 0), Vector(117, 65, 0)),  # 7
], False)
sketch14.addConstraint([
    Sketcher.Constraint("Coincident", 4, 2, 5, 1),
    Sketcher.Constraint("Coincident", 5, 2, 6, 1),
    Sketcher.Constraint("Coincident", 6, 2, 7, 1),
    Sketcher.Constraint("Coincident", 7, 2, 4, 1),
    Sketcher.Constraint("Vertical", 4),
    Sketcher.Constraint("Horizontal", 5),
    Sketcher.Constraint("Vertical", 6),
    Sketcher.Constraint("Horizontal", 7),
    Sketcher.Constraint("Equal", 0, 1),
    Sketcher.Constraint("Equal", 1, 2),
    Sketcher.Constraint("Equal", 2, 3),
    Sketcher.Constraint("Horizontal", 0, 3, 1, 3),
    Sketcher.Constraint("Horizontal", 2, 3, 3, 3),
    Sketcher.Constraint("Vertical", 0, 3, 2, 3),
    Sketcher.Constraint("Vertical", 1, 3, 3, 3),
    Sketcher.Constraint("Diameter", 0, Q("3 mm")),
    Sketcher.Constraint("DistanceX", 5, 2, 5, 1, Q("100 mm")),
    Sketcher.Constraint("DistanceY", 4, 2, 4, 1, Q("15 mm")),
    Sketcher.Constraint("DistanceX", -1, 1, 0, 3, Q("120 mm")),
    Sketcher.Constraint("DistanceY", -1, 1, 0, 3, Q("45 mm")),
    Sketcher.Constraint("DistanceX", -1, 1, 1, 3, Q("15 mm")),
    Sketcher.Constraint("DistanceY", -1, 1, 2, 3, Q("70 mm")),
    Sketcher.Constraint("DistanceX", -1, 1, 4, 2, Q("117 mm")),
    Sketcher.Constraint("DistanceY", -1, 1, 4, 2, Q("50 mm")),
])
pocket10 = body.newObject("PartDesign::Pocket", "Pocket009")
pocket10.Profile = sketch14
pocket10.Length = 2
pocket10.Reversed = True

doc.recompute()
